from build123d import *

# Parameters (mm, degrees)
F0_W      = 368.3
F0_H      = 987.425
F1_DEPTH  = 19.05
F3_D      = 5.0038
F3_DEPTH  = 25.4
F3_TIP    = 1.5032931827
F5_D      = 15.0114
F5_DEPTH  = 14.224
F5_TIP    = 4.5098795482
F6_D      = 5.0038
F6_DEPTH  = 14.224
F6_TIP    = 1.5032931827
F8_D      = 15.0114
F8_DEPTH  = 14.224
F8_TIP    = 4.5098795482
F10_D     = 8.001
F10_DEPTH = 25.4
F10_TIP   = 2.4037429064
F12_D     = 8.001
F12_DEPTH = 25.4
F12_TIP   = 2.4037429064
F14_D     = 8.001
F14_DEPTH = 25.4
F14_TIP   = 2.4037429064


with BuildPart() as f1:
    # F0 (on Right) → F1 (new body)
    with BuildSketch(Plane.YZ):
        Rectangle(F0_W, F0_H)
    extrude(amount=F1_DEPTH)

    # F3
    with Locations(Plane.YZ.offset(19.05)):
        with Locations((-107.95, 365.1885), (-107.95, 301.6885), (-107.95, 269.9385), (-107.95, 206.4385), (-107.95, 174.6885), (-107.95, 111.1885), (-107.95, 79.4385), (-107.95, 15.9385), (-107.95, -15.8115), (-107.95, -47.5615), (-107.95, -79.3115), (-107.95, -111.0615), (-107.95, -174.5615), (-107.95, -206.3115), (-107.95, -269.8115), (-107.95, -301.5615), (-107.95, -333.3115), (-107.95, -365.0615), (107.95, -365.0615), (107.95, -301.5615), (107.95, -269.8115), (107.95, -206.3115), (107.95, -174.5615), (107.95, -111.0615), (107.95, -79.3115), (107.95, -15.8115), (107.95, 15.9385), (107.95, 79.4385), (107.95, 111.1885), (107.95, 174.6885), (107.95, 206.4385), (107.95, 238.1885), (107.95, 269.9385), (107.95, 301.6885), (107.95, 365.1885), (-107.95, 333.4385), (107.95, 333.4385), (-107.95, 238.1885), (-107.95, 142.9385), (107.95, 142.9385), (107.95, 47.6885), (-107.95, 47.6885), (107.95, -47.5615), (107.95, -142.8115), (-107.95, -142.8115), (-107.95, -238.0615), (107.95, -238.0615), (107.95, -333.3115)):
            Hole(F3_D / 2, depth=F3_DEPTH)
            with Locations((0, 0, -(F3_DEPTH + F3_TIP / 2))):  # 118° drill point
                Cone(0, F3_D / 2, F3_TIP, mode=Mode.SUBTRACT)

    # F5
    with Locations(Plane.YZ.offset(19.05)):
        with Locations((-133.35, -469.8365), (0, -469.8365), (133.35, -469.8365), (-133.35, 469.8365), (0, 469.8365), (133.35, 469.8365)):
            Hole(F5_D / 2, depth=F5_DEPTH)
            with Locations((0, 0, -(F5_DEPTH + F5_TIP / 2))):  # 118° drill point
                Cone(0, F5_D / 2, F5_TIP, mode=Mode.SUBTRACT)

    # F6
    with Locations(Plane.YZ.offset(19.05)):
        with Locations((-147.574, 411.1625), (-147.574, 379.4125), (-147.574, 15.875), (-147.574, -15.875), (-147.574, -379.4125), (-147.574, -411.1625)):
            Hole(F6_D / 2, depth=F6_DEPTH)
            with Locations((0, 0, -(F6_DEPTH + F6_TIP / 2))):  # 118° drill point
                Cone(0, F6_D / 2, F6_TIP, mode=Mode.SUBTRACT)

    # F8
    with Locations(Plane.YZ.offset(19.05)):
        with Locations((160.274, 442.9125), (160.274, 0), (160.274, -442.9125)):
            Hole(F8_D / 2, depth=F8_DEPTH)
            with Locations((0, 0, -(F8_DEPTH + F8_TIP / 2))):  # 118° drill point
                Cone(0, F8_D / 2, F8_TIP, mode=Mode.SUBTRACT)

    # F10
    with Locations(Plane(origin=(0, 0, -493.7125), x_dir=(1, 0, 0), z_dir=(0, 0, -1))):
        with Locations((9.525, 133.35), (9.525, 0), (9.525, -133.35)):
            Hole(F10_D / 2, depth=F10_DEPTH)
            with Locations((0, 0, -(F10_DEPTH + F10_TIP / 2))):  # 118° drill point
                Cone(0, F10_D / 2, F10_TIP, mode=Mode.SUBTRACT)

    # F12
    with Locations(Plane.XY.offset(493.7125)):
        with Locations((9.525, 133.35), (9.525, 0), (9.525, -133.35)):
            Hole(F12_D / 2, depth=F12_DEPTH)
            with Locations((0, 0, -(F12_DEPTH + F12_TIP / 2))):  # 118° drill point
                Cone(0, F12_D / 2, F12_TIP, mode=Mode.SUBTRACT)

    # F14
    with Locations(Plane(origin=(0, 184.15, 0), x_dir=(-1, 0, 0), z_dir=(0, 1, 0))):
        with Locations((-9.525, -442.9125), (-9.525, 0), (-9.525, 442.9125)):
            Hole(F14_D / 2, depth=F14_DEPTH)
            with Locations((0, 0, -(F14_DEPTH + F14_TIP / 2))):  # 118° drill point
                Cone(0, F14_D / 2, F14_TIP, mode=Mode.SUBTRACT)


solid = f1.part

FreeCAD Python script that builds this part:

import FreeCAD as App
import Part
import Sketcher

V = App.Vector
Q = App.Units.Quantity

doc = App.newDocument("Part")
body = doc.addObject("PartDesign::Body", "Body")

sketch1 = body.newObject("Sketcher::SketchObject", "Sketch")
sketch1.AttachmentSupport = (doc.getObject("YZ_Plane"), [""])
sketch1.MapMode = "FlatFace"
sketch1.addGeometry(Part.LineSegment(V(-184.15, 493.7125, 0), V(-184.15, -493.7125, 0)), False)
sketch1.addGeometry(Part.LineSegment(V(-184.15, -493.7125, 0), V(184.15, -493.7125, 0)), False)
sketch1.addGeometry(Part.LineSegment(V(184.15, -493.7125, 0), V(184.15, 493.7125, 0)), False)
sketch1.addGeometry(Part.LineSegment(V(184.15, 493.7125, 0), V(-184.15, 493.7125, 0)), False)
sketch1.addConstraint(Sketcher.Constraint("Coincident", 0, 2, 1, 1))
sketch1.addConstraint(Sketcher.Constraint("Coincident", 1, 2, 2, 1))
sketch1.addConstraint(Sketcher.Constraint("Coincident", 2, 2, 3, 1))
sketch1.addConstraint(Sketcher.Constraint("Coincident", 3, 2, 0, 1))
sketch1.addConstraint(Sketcher.Constraint("Vertical", 0))
sketch1.addConstraint(Sketcher.Constraint("Horizontal", 1))
sketch1.addConstraint(Sketcher.Constraint("Vertical", 2))
sketch1.addConstraint(Sketcher.Constraint("Horizontal", 3))
sketch1.addConstraint(Sketcher.Constraint("Symmetric", 0, 2, 2, 2, -1, 1))
sketch1.addConstraint(Sketcher.Constraint("DistanceX", 1, 1, 1, 2, Q("14.5 in")))
sketch1.addConstraint(Sketcher.Constraint("DistanceY", 0, 2, 0, 1, Q("38.875 in")))
pad1 = body.newObject("PartDesign::Pad", "Pad")
pad1.Profile = sketch1
pad1.Length = Q("0.75 in")

sketch2 = body.newObject("Sketcher::SketchObject", "Sketch001")
sketch2.AttachmentSupport = (doc.getObject("YZ_Plane"), [""])
sketch2.MapMode = "FlatFace"
sketch2.AttachmentOffset = App.Placement(V(0, 0, 0.75 * 25.4), App.Rotation())
sketch2.addGeometry(Part.Circle(V(-107.95, 365.1885, 0), V(0, 0, 1), 2.5019), False)
sketch2.addGeometry(Part.Circle(V(-107.95, 301.6885, 0), V(0, 0, 1), 2.5019), False)
sketch2.addGeometry(Part.Circle(V(-107.95, 269.9385, 0), V(0, 0, 1), 2.5019), False)
sketch2.addGeometry(Part.Circle(V(-107.95, 206.4385, 0), V(0, 0, 1), 2.5019), False)
sketch2.addGeometry(Part.Circle(V(-107.95, 174.6885, 0), V(0, 0, 1), 2.5019), False)
sketch2.addGeometry(Part.Circle(V(-107.95, 111.1885, 0), V(0, 0, 1), 2.5019), False)
sketch2.addGeometry(Part.Circle(V(-107.95, 79.4385, 0), V(0, 0, 1), 2.5019), False)
sketch2.addGeometry(Part.Circle(V(-107.95, 15.9385, 0), V(0, 0, 1), 2.5019), False)
sketch2.addGeometry(Part.Circle(V(-107.95, -15.8115, 0), V(0, 0, 1), 2.5019), False)
sketch2.addGeometry(Part.Circle(V(-107.95, -47.5615, 0), V(0, 0, 1), 2.5019), False)
sketch2.addGeometry(Part.Circle(V(-107.95, -79.3115, 0), V(0, 0, 1), 2.5019), False)
sketch2.addGeometry(Part.Circle(V(-107.95, -111.0615, 0), V(0, 0, 1), 2.5019), False)
sketch2.addGeometry(Part.Circle(V(-107.95, -174.5615, 0), V(0, 0, 1), 2.5019), False)
sketch2.addGeometry(Part.Circle(V(-107.95, -206.3115, 0), V(0, 0, 1), 2.5019), False)
sketch2.addGeometry(Part.Circle(V(-107.95, -269.8115, 0), V(0, 0, 1), 2.5019), False)
sketch2.addGeometry(Part.Circle(V(-107.95, -301.5615, 0), V(0, 0, 1), 2.5019), False)
sketch2.addGeometry(Part.Circle(V(-107.95, -333.3115, 0), V(0, 0, 1), 2.5019), False)
sketch2.addGeometry(Part.Circle(V(-107.95, -365.0615, 0), V(0, 0, 1), 2.5019), False)
sketch2.addGeometry(Part.Circle(V(107.95, -365.0615, 0), V(0, 0, 1), 2.5019), False)
sketch2.addGeometry(Part.Circle(V(107.95, -301.5615, 0), V(0, 0, 1), 2.5019), False)
sketch2.addGeometry(Part.Circle(V(107.95, -269.8115, 0), V(0, 0, 1), 2.5019), False)
sketch2.addGeometry(Part.Circle(V(107.95, -206.3115, 0), V(0, 0, 1), 2.5019), False)
sketch2.addGeometry(Part.Circle(V(107.95, -174.5615, 0), V(0, 0, 1), 2.5019), False)
sketch2.addGeometry(Part.Circle(V(107.95, -111.0615, 0), V(0, 0, 1), 2.5019), False)
sketch2.addGeometry(Part.Circle(V(107.95, -79.3115, 0), V(0, 0, 1), 2.5019), False)
sketch2.addGeometry(Part.Circle(V(107.95, -15.8115, 0), V(0, 0, 1), 2.5019), False)
sketch2.addGeometry(Part.Circle(V(107.95, 15.9385, 0), V(0, 0, 1), 2.5019), False)
sketch2.addGeometry(Part.Circle(V(107.95, 79.4385, 0), V(0, 0, 1), 2.5019), False)
sketch2.addGeometry(Part.Circle(V(107.95, 111.1885, 0), V(0, 0, 1), 2.5019), False)
sketch2.addGeometry(Part.Circle(V(107.95, 174.6885, 0), V(0, 0, 1), 2.5019), False)
sketch2.addGeometry(Part.Circle(V(107.95, 206.4385, 0), V(0, 0, 1), 2.5019), False)
sketch2.addGeometry(Part.Circle(V(107.95, 238.1885, 0), V(0, 0, 1), 2.5019), False)
sketch2.addGeometry(Part.Circle(V(107.95, 269.9385, 0), V(0, 0, 1), 2.5019), False)
sketch2.addGeometry(Part.Circle(V(107.95, 301.6885, 0), V(0, 0, 1), 2.5019), False)
sketch2.addGeometry(Part.Circle(V(107.95, 365.1885, 0), V(0, 0, 1), 2.5019), False)
sketch2.addGeometry(Part.Circle(V(-107.95, 333.4385, 0), V(0, 0, 1), 2.5019), False)
sketch2.addGeometry(Part.Circle(V(107.95, 333.4385, 0), V(0, 0, 1), 2.5019), False)
sketch2.addGeometry(Part.Circle(V(-107.95, 238.1885, 0), V(0, 0, 1), 2.5019), False)
sketch2.addGeometry(Part.Circle(V(-107.95, 142.9385, 0), V(0, 0, 1), 2.5019), False)
sketch2.addGeometry(Part.Circle(V(107.95, 142.9385, 0), V(0, 0, 1), 2.5019), False)
sketch2.addGeometry(Part.Circle(V(107.95, 47.6885, 0), V(0, 0, 1), 2.5019), False)
sketch2.addGeometry(Part.Circle(V(-107.95, 47.6885, 0), V(0, 0, 1), 2.5019), False)
sketch2.addGeometry(Part.Circle(V(107.95, -47.5615, 0), V(0, 0, 1), 2.5019), False)
sketch2.addGeometry(Part.Circle(V(107.95, -142.8115, 0), V(0, 0, 1), 2.5019), False)
sketch2.addGeometry(Part.Circle(V(-107.95, -142.8115, 0), V(0, 0, 1), 2.5019), False)
sketch2.addGeometry(Part.Circle(V(-107.95, -238.0615, 0), V(0, 0, 1), 2.5019), False)
sketch2.addGeometry(Part.Circle(V(107.95, -238.0615, 0), V(0, 0, 1), 2.5019), False)
sketch2.addGeometry(Part.Circle(V(107.95, -333.3115, 0), V(0, 0, 1), 2.5019), False)
sketch2.addConstraint(Sketcher.Constraint("Equal", 0, 1))
sketch2.addConstraint(Sketcher.Constraint("Equal", 1, 2))
sketch2.addConstraint(Sketcher.Constraint("Equal", 2, 3))
sketch2.addConstraint(Sketcher.Constraint("Equal", 3, 4))
sketch2.addConstraint(Sketcher.Constraint("Equal", 4, 5))
sketch2.addConstraint(Sketcher.Constraint("Equal", 5, 6))
sketch2.addConstraint(Sketcher.Constraint("Equal", 6, 7))
sketch2.addConstraint(Sketcher.Constraint("Equal", 7, 8))
sketch2.addConstraint(Sketcher.Constraint("Equal", 8, 9))
sketch2.addConstraint(Sketcher.Constraint("Equal", 9, 10))
sketch2.addConstraint(Sketcher.Constraint("Equal", 10, 11))
sketch2.addConstraint(Sketcher.Constraint("Equal", 11, 12))
sketch2.addConstraint(Sketcher.Constraint("Equal", 12, 13))
sketch2.addConstraint(Sketcher.Constraint("Equal", 13, 14))
sketch2.addConstraint(Sketcher.Constraint("Equal", 14, 15))
sketch2.addConstraint(Sketcher.Constraint("Equal", 15, 16))
sketch2.addConstraint(Sketcher.Constraint("Equal", 16, 17))
sketch2.addConstraint(Sketcher.Constraint("Equal", 17, 18))
sketch2.addConstraint(Sketcher.Constraint("Equal", 18, 19))
sketch2.addConstraint(Sketcher.Constraint("Equal", 19, 20))
sketch2.addConstraint(Sketcher.Constraint("Equal", 20, 21))
sketch2.addConstraint(Sketcher.Constraint("Equal", 21, 22))
sketch2.addConstraint(Sketcher.Constraint("Equal", 22, 23))
sketch2.addConstraint(Sketcher.Constraint("Equal", 23, 24))
sketch2.addConstraint(Sketcher.Constraint("Equal", 24, 25))
sketch2.addConstraint(Sketcher.Constraint("Equal", 25, 26))
sketch2.addConstraint(Sketcher.Constraint("Equal", 26, 27))
sketch2.addConstraint(Sketcher.Constraint("Equal", 27, 28))
sketch2.addConstraint(Sketcher.Constraint("Equal", 28, 29))
sketch2.addConstraint(Sketcher.Constraint("Equal", 29, 30))
sketch2.addConstraint(Sketcher.Constraint("Equal", 30, 31))
sketch2.addConstraint(Sketcher.Constraint("Equal", 31, 32))
sketch2.addConstraint(Sketcher.Constraint("Equal", 32, 33))
sketch2.addConstraint(Sketcher.Constraint("Equal", 33, 34))
sketch2.addConstraint(Sketcher.Constraint("Equal", 34, 35))
sketch2.addConstraint(Sketcher.Constraint("Equal", 35, 36))
sketch2.addConstraint(Sketcher.Constraint("Equal", 36, 37))
sketch2.addConstraint(Sketcher.Constraint("Equal", 37, 38))
sketch2.addConstraint(Sketcher.Constraint("Equal", 38, 39))
sketch2.addConstraint(Sketcher.Constraint("Equal", 39, 40))
sketch2.addConstraint(Sketcher.Constraint("Equal", 40, 41))
sketch2.addConstraint(Sketcher.Constraint("Equal", 41, 42))
sketch2.addConstraint(Sketcher.Constraint("Equal", 42, 43))
sketch2.addConstraint(Sketcher.Constraint("Equal", 43, 44))
sketch2.addConstraint(Sketcher.Constraint("Equal", 44, 45))
sketch2.addConstraint(Sketcher.Constraint("Equal", 45, 46))
sketch2.addConstraint(Sketcher.Constraint("Equal", 46, 47))
sketch2.addConstraint(Sketcher.Constraint("Symmetric", 17, 3, 18, 3, -2))
sketch2.addConstraint(Sketcher.Constraint("Symmetric", 15, 3, 19, 3, -2))
sketch2.addConstraint(Sketcher.Constraint("Symmetric", 14, 3, 20, 3, -2))
sketch2.addConstraint(Sketcher.Constraint("Symmetric", 13, 3, 21, 3, -2))
sketch2.addConstraint(Sketcher.Constraint("Symmetric", 12, 3, 22, 3, -2))
sketch2.addConstraint(Sketcher.Constraint("Symmetric", 11, 3, 23, 3, -2))
sketch2.addConstraint(Sketcher.Constraint("Symmetric", 10, 3, 24, 3, -2))
sketch2.addConstraint(Sketcher.Constraint("Symmetric", 8, 3, 25, 3, -2))
sketch2.addConstraint(Sketcher.Constraint("Symmetric", 7, 3, 26, 3, -2))
sketch2.addConstraint(Sketcher.Constraint("Symmetric", 6, 3, 27, 3, -2))
sketch2.addConstraint(Sketcher.Constraint("Symmetric", 5, 3, 28, 3, -2))
sketch2.addConstraint(Sketcher.Constraint("Symmetric", 4, 3, 29, 3, -2))
sketch2.addConstraint(Sketcher.Constraint("Symmetric", 3, 3, 30, 3, -2))
sketch2.addConstraint(Sketcher.Constraint("Symmetric", 2, 3, 32, 3, -2))
sketch2.addConstraint(Sketcher.Constraint("Symmetric", 1, 3, 33, 3, -2))
sketch2.addConstraint(Sketcher.Constraint("Symmetric", 0, 3, 34, 3, -2))
sketch2.addConstraint(Sketcher.Constraint("Symmetric", 35, 3, 36, 3, -2))
sketch2.addConstraint(Sketcher.Constraint("Symmetric", 31, 3, 37, 3, -2))
sketch2.addConstraint(Sketcher.Constraint("Symmetric", 38, 3, 39, 3, -2))
sketch2.addConstraint(Sketcher.Constraint("Symmetric", 40, 3, 41, 3, -2))
sketch2.addConstraint(Sketcher.Constraint("Symmetric", 9, 3, 42, 3, -2))
sketch2.addConstraint(Sketcher.Constraint("Symmetric", 43, 3, 44, 3, -2))
sketch2.addConstraint(Sketcher.Constraint("Symmetric", 45, 3, 46, 3, -2))
sketch2.addConstraint(Sketcher.Constraint("Symmetric", 16, 3, 47, 3, -2))
sketch2.addConstraint(Sketcher.Constraint("Vertical", 0, 3, 1, 3))
sketch2.addConstraint(Sketcher.Constraint("Vertical", 1, 3, 2, 3))
sketch2.addConstraint(Sketcher.Constraint("Vertical", 2, 3, 3, 3))
sketch2.addConstraint(Sketcher.Constraint("Vertical", 3, 3, 4, 3))
sketch2.addConstraint(Sketcher.Constraint("Vertical", 4, 3, 5, 3))
sketch2.addConstraint(Sketcher.Constraint("Vertical", 5, 3, 6, 3))
sketch2.addConstraint(Sketcher.Constraint("Vertical", 6, 3, 7, 3))
sketch2.addConstraint(Sketcher.Constraint("Vertical", 7, 3, 8, 3))
sketch2.addConstraint(Sketcher.Constraint("Vertical", 8, 3, 9, 3))
sketch2.addConstraint(Sketcher.Constraint("Vertical", 9, 3, 10, 3))
sketch2.addConstraint(Sketcher.Constraint("Vertical", 10, 3, 11, 3))
sketch2.addConstraint(Sketcher.Constraint("Vertical", 11, 3, 12, 3))
sketch2.addConstraint(Sketcher.Constraint("Vertical", 12, 3, 13, 3))
sketch2.addConstraint(Sketcher.Constraint("Vertical", 13, 3, 14, 3))
sketch2.addConstraint(Sketcher.Constraint("Vertical", 14, 3, 15, 3))
sketch2.addConstraint(Sketcher.Constraint("Vertical", 15, 3, 16, 3))
sketch2.addConstraint(Sketcher.Constraint("Vertical", 16, 3, 17, 3))
sketch2.addConstraint(Sketcher.Constraint("Vertical", 30, 3, 31, 3))
sketch2.addConstraint(Sketcher.Constraint("Vertical", 17, 3, 35, 3))
sketch2.addConstraint(Sketcher.Constraint("Vertical", 37, 3, 38, 3))
sketch2.addConstraint(Sketcher.Constraint("Vertical", 39, 3, 40, 3))
sketch2.addConstraint(Sketcher.Constraint("Vertical", 42, 3, 43, 3))
sketch2.addConstraint(Sketcher.Constraint("Vertical", 44, 3, 45, 3))
sketch2.addConstraint(Sketcher.Constraint("Diameter", 0, Q("0.197 in")))
sketch2.addConstraint(Sketcher.Constraint("DistanceY", 4, 3, 1, 3, Q("5 in")))
sketch2.addConstraint(Sketcher.Constraint("DistanceY", 5, 3, 0, 3, Q("10 in")))
sketch2.addConstraint(Sketcher.Constraint("DistanceY", 6, 3, 3, 3, Q("5 in")))
sketch2.addConstraint(Sketcher.Constraint("DistanceY", 7, 3, 2, 3, Q("10 in")))
sketch2.addConstraint(Sketcher.Constraint("DistanceY", 8, 3, 5, 3, Q("5 in")))
sketch2.addConstraint(Sketcher.Constraint("DistanceY", 9, 3, 6, 3, Q("5 in")))
sketch2.addConstraint(Sketcher.Constraint("DistanceY", 11, 3, 7, 3, Q("5 in")))
sketch2.addConstraint(Sketcher.Constraint("DistanceY", 12, 3, 9, 3, Q("5 in")))
sketch2.addConstraint(Sketcher.Constraint("DistanceY", 13, 3, 10, 3, Q("5 in")))
sketch2.addConstraint(Sketcher.Constraint("DistanceY", 15, 3, 12, 3, Q("5 in")))
sketch2.addConstraint(Sketcher.Constraint("DistanceY", 16, 3, 13, 3, Q("5 in")))
sketch2.addConstraint(Sketcher.Constraint("DistanceY", 28, 3, 31, 3, Q("5 in")))
sketch2.addConstraint(Sketcher.Constraint("DistanceY", 3, 3, 35, 3, Q("5 in")))
sketch2.addConstraint(Sketcher.Constraint("DistanceY", 1, 3, 0, 3, Q("2.5 in")))
sketch2.addConstraint(Sketcher.Constraint("DistanceY", 3, 3, 2, 3, Q("2.5 in")))
sketch2.addConstraint(Sketcher.Constraint("DistanceY", 10, 3, 8, 3, Q("2.5 in")))
sketch2.addConstraint(Sketcher.Constraint("DistanceY", 14, 3, 13, 3, Q("2.5 in")))
sketch2.addConstraint(Sketcher.Constraint("DistanceY", 17, 3, 15, 3, Q("2.5 in")))
sketch2.addConstraint(Sketcher.Constraint("DistanceX", 17, 3, 18, 3, Q("8.5 in")))
sketch2.addConstraint(Sketcher.Constraint("DistanceY", 38, 3, 3, 3, Q("2.5 in")))
sketch2.addConstraint(Sketcher.Constraint("DistanceY", 25, 3, 40, 3, Q("2.5 in")))
sketch2.addConstraint(Sketcher.Constraint("DistanceY", 21, 3, 43, 3, Q("2.5 in")))
sketch2.addConstraint(Sketcher.Constraint("DistanceY", 45, 3, 12, 3, Q("2.5 in")))
sketch2.addConstraint(Sketcher.Constraint("DistanceY", 2, 3, 1, 3, Q("1.25 in")))
sketch2.addConstraint(Sketcher.Constraint("DistanceY", -1, 1, 0, 3, Q("14.3775 in")))
doc.recompute()
hole = body.newObject("PartDesign::Hole", "Hole")
hole.Profile = sketch2
hole.ThreadType = "None"
hole.Diameter = Q("0.197 in")
hole.DepthType = "Dimension"
hole.Depth = Q("1 in")
hole.DrillPoint = "Angled"
hole.DrillPointAngle = 118

sketch3 = body.newObject("Sketcher::SketchObject", "Sketch002")
sketch3.AttachmentSupport = (doc.getObject("YZ_Plane"), [""])
sketch3.MapMode = "FlatFace"
sketch3.AttachmentOffset = App.Placement(V(0, 0, 0.75 * 25.4), App.Rotation())
sketch3.addGeometry(Part.Circle(V(-133.35, -469.8365, 0), V(0, 0, 1), 7.5057), False)
sketch3.addGeometry(Part.Circle(V(0, -469.8365, 0), V(0, 0, 1), 7.5057), False)
sketch3.addGeometry(Part.Circle(V(133.35, -469.8365, 0), V(0, 0, 1), 7.5057), False)
sketch3.addGeometry(Part.Circle(V(-133.35, 469.8365, 0), V(0, 0, 1), 7.5057), False)
sketch3.addGeometry(Part.Circle(V(0, 469.8365, 0), V(0, 0, 1), 7.5057), False)
sketch3.addGeometry(Part.Circle(V(133.35, 469.8365, 0), V(0, 0, 1), 7.5057), False)
sketch3.addConstraint(Sketcher.Constraint("Equal", 0, 1))
sketch3.addConstraint(Sketcher.Constraint("Equal", 1, 2))
sketch3.addConstraint(Sketcher.Constraint("Equal", 2, 3))
sketch3.addConstraint(Sketcher.Constraint("Equal", 3, 4))
sketch3.addConstraint(Sketcher.Constraint("Equal", 4, 5))
sketch3.addConstraint(Sketcher.Constraint("Symmetric", 2, 3, 3, 3, -1, 1))
sketch3.addConstraint(Sketcher.Constraint("Symmetric", 1, 3, 4, 3, -1, 1))
sketch3.addConstraint(Sketcher.Constraint("Symmetric", 0, 3, 5, 3, -1, 1))
sketch3.addConstraint(Sketcher.Constraint("Symmetric", 0, 3, 2, 3, -2))
sketch3.addConstraint(Sketcher.Constraint("PointOnObject", 1, 3, -2))
sketch3.addConstraint(Sketcher.Constraint("Horizontal", 0, 3, 1, 3))
sketch3.addConstraint(Sketcher.Constraint("Diameter", 0, Q("0.591 in")))
sketch3.addConstraint(Sketcher.Constraint("DistanceX", 0, 3, 2, 3, Q("10.5 in")))
sketch3.addConstraint(Sketcher.Constraint("DistanceY", 0, 3, 3, 3, Q("36.995 in")))
doc.recompute()
hole2 = body.newObject("PartDesign::Hole", "Hole001")
hole2.Profile = sketch3
hole2.ThreadType = "None"
hole2.Diameter = Q("0.591 in")
hole2.DepthType = "Dimension"
hole2.Depth = Q("0.56 in")
hole2.DrillPoint = "Angled"
hole2.DrillPointAngle = 118

sketch4 = body.newObject("Sketcher::SketchObject", "Sketch003")
sketch4.AttachmentSupport = (doc.getObject("YZ_Plane"), [""])
sketch4.MapMode = "FlatFace"
sketch4.AttachmentOffset = App.Placement(V(0, 0, 0.75 * 25.4), App.Rotation())
sketch4.addGeometry(Part.Circle(V(-147.574, 411.1625, 0), V(0, 0, 1), 2.5019), False)
sketch4.addGeometry(Part.Circle(V(-147.574, 379.4125, 0), V(0, 0, 1), 2.5019), False)
sketch4.addGeometry(Part.Circle(V(-147.574, 15.875, 0), V(0, 0, 1), 2.5019), False)
sketch4.addGeometry(Part.Circle(V(-147.574, -15.875, 0), V(0, 0, 1), 2.5019), False)
sketch4.addGeometry(Part.Circle(V(-147.574, -379.4125, 0), V(0, 0, 1), 2.5019), False)
sketch4.addGeometry(Part.Circle(V(-147.574, -411.1625, 0), V(0, 0, 1), 2.5019), False)
sketch4.addConstraint(Sketcher.Constraint("Equal", 0, 1))
sketch4.addConstraint(Sketcher.Constraint("Equal", 1, 2))
sketch4.addConstraint(Sketcher.Constraint("Equal", 2, 3))
sketch4.addConstraint(Sketcher.Constraint("Equal", 3, 4))
sketch4.addConstraint(Sketcher.Constraint("Equal", 4, 5))
sketch4.addConstraint(Sketcher.Constraint("Symmetric", 2, 3, 3, 3, -1))
sketch4.addConstraint(Sketcher.Constraint("Symmetric", 1, 3, 4, 3, -1))
sketch4.addConstraint(Sketcher.Constraint("Symmetric", 0, 3, 5, 3, -1))
sketch4.addConstraint(Sketcher.Constraint("Vertical", 0, 3, 1, 3))
sketch4.addConstraint(Sketcher.Constraint("Vertical", 1, 3, 2, 3))
sketch4.addConstraint(Sketcher.Constraint("Diameter", 0, Q("0.197 in")))
sketch4.addConstraint(Sketcher.Constraint("DistanceX", 0, 3, -1, 1, Q("5.81 in")))
sketch4.addConstraint(Sketcher.Constraint("DistanceY", 1, 3, 0, 3, Q("1.25 in")))
sketch4.addConstraint(Sketcher.Constraint("DistanceY", 3, 3, 2, 3, Q("1.25 in")))
sketch4.addConstraint(Sketcher.Constraint("DistanceY", -1, 1, 0, 3, Q("16.1875 in")))
doc.recompute()
hole3 = body.newObject("PartDesign::Hole", "Hole002")
hole3.Profile = sketch4
hole3.ThreadType = "None"
hole3.Diameter = Q("0.197 in")
hole3.DepthType = "Dimension"
hole3.Depth = Q("0.56 in")
hole3.DrillPoint = "Angled"
hole3.DrillPointAngle = 118

sketch5 = body.newObject("Sketcher::SketchObject", "Sketch004")
sketch5.AttachmentSupport = (doc.getObject("YZ_Plane"), [""])
sketch5.MapMode = "FlatFace"
sketch5.AttachmentOffset = App.Placement(V(0, 0, 0.75 * 25.4), App.Rotation())
sketch5.addGeometry(Part.Circle(V(160.274, 442.9125, 0), V(0, 0, 1), 7.5057), False)
sketch5.addGeometry(Part.Circle(V(160.274, 0, 0), V(0, 0, 1), 7.5057), False)
sketch5.addGeometry(Part.Circle(V(160.274, -442.9125, 0), V(0, 0, 1), 7.5057), False)
sketch5.addConstraint(Sketcher.Constraint("Equal", 0, 1))
sketch5.addConstraint(Sketcher.Constraint("Equal", 1, 2))
sketch5.addConstraint(Sketcher.Constraint("Symmetric", 0, 3, 2, 3, -1))
sketch5.addConstraint(Sketcher.Constraint("PointOnObject", 1, 3, -1))
sketch5.addConstraint(Sketcher.Constraint("Vertical", 0, 3, 1, 3))
sketch5.addConstraint(Sketcher.Constraint("Diameter", 0, Q("0.591 in")))
sketch5.addConstraint(Sketcher.Constraint("DistanceX", -1, 1, 0, 3, Q("6.31 in")))
sketch5.addConstraint(Sketcher.Constraint("DistanceY", -1, 1, 0, 3, Q("17.4375 in")))
doc.recompute()
hole4 = body.newObject("PartDesign::Hole", "Hole003")
hole4.Profile = sketch5
hole4.ThreadType = "None"
hole4.Diameter = Q("0.591 in")
hole4.DepthType = "Dimension"
hole4.Depth = Q("0.56 in")
hole4.DrillPoint = "Angled"
hole4.DrillPointAngle = 118

sketch6 = body.newObject("Sketcher::SketchObject", "Sketch005")
sketch6.AttachmentSupport = (doc.getObject("XY_Plane"), [""])
sketch6.MapMode = "FlatFace"
sketch6.AttachmentOffset = App.Placement(V(0, 0, -19.4375 * 25.4), App.Rotation())
sketch6.addGeometry(Part.Circle(V(9.525, -133.35, 0), V(0, 0, 1), 4.0005), False)
sketch6.addGeometry(Part.Circle(V(9.525, 0, 0), V(0, 0, 1), 4.0005), False)
sketch6.addGeometry(Part.Circle(V(9.525, 133.35, 0), V(0, 0, 1), 4.0005), False)
sketch6.addConstraint(Sketcher.Constraint("Equal", 0, 1))
sketch6.addConstraint(Sketcher.Constraint("Equal", 1, 2))
sketch6.addConstraint(Sketcher.Constraint("Symmetric", 0, 3, 2, 3, -1))
sketch6.addConstraint(Sketcher.Constraint("PointOnObject", 1, 3, -1))
sketch6.addConstraint(Sketcher.Constraint("Vertical", 0, 3, 1, 3))
sketch6.addConstraint(Sketcher.Constraint("Diameter", 0, Q("0.315 in")))
sketch6.addConstraint(Sketcher.Constraint("DistanceY", 0, 3, 2, 3, Q("10.5 in")))
sketch6.addConstraint(Sketcher.Constraint("DistanceX", -1, 1, 0, 3, Q("0.375 in")))
doc.recompute()
hole5 = body.newObject("PartDesign::Hole", "Hole004")
hole5.Profile = sketch6
hole5.ThreadType = "None"
hole5.Diameter = Q("0.315 in")
hole5.DepthType = "Dimension"
hole5.Depth = Q("1 in")
hole5.DrillPoint = "Angled"
hole5.DrillPointAngle = 118
hole5.Reversed = True

sketch7 = body.newObject("Sketcher::SketchObject", "Sketch006")
sketch7.AttachmentSupport = (doc.getObject("XY_Plane"), [""])
sketch7.MapMode = "FlatFace"
sketch7.AttachmentOffset = App.Placement(V(0, 0, 19.4375 * 25.4), App.Rotation())
sketch7.addGeometry(Part.Circle(V(9.525, 133.35, 0), V(0, 0, 1), 4.0005), False)
sketch7.addGeometry(Part.Circle(V(9.525, 0, 0), V(0, 0, 1), 4.0005), False)
sketch7.addGeometry(Part.Circle(V(9.525, -133.35, 0), V(0, 0, 1), 4.0005), False)
sketch7.addConstraint(Sketcher.Constraint("Equal", 0, 1))
sketch7.addConstraint(Sketcher.Constraint("Equal", 1, 2))
sketch7.addConstraint(Sketcher.Constraint("Symmetric", 0, 3, 2, 3, -1))
sketch7.addConstraint(Sketcher.Constraint("PointOnObject", 1, 3, -1))
sketch7.addConstraint(Sketcher.Constraint("Vertical", 0, 3, 1, 3))
sketch7.addConstraint(Sketcher.Constraint("Diameter", 0, Q("0.315 in")))
sketch7.addConstraint(Sketcher.Constraint("DistanceY", 2, 3, 0, 3, Q("10.5 in")))
sketch7.addConstraint(Sketcher.Constraint("DistanceX", -1, 1, 0, 3, Q("0.375 in")))
doc.recompute()
hole6 = body.newObject("PartDesign::Hole", "Hole005")
hole6.Profile = sketch7
hole6.ThreadType = "None"
hole6.Diameter = Q("0.315 in")
hole6.DepthType = "Dimension"
hole6.Depth = Q("1 in")
hole6.DrillPoint = "Angled"
hole6.DrillPointAngle = 118

sketch8 = body.newObject("Sketcher::SketchObject", "Sketch007")
sketch8.AttachmentSupport = (doc.getObject("XZ_Plane"), [""])
sketch8.MapMode = "FlatFace"
sketch8.AttachmentOffset = App.Placement(V(0, 0, -7.25 * 25.4), App.Rotation())
sketch8.addGeometry(Part.Circle(V(9.525, -442.9125, 0), V(0, 0, 1), 4.0005), False)
sketch8.addGeometry(Part.Circle(V(9.525, 0, 0), V(0, 0, 1), 4.0005), False)
sketch8.addGeometry(Part.Circle(V(9.525, 442.9125, 0), V(0, 0, 1), 4.0005), False)
sketch8.addConstraint(Sketcher.Constraint("Equal", 0, 1))
sketch8.addConstraint(Sketcher.Constraint("Equal", 1, 2))
sketch8.addConstraint(Sketcher.Constraint("Symmetric", 0, 3, 2, 3, -1))
sketch8.addConstraint(Sketcher.Constraint("PointOnObject", 1, 3, -1))
sketch8.addConstraint(Sketcher.Constraint("Vertical", 0, 3, 1, 3))
sketch8.addConstraint(Sketcher.Constraint("Diameter", 0, Q("0.315 in")))
sketch8.addConstraint(Sketcher.Constraint("DistanceX", -1, 1, 0, 3, Q("0.375 in")))
sketch8.addConstraint(Sketcher.Constraint("DistanceY", 0, 3, -1, 1, Q("17.4375 in")))
doc.recompute()
hole7 = body.newObject("PartDesign::Hole", "Hole006")
hole7.Profile = sketch8
hole7.ThreadType = "None"
hole7.Diameter = Q("0.315 in")
hole7.DepthType = "Dimension"
hole7.Depth = Q("1 in")
hole7.DrillPoint = "Angled"
hole7.DrillPointAngle = 118
hole7.Reversed = True

doc.recompute()
